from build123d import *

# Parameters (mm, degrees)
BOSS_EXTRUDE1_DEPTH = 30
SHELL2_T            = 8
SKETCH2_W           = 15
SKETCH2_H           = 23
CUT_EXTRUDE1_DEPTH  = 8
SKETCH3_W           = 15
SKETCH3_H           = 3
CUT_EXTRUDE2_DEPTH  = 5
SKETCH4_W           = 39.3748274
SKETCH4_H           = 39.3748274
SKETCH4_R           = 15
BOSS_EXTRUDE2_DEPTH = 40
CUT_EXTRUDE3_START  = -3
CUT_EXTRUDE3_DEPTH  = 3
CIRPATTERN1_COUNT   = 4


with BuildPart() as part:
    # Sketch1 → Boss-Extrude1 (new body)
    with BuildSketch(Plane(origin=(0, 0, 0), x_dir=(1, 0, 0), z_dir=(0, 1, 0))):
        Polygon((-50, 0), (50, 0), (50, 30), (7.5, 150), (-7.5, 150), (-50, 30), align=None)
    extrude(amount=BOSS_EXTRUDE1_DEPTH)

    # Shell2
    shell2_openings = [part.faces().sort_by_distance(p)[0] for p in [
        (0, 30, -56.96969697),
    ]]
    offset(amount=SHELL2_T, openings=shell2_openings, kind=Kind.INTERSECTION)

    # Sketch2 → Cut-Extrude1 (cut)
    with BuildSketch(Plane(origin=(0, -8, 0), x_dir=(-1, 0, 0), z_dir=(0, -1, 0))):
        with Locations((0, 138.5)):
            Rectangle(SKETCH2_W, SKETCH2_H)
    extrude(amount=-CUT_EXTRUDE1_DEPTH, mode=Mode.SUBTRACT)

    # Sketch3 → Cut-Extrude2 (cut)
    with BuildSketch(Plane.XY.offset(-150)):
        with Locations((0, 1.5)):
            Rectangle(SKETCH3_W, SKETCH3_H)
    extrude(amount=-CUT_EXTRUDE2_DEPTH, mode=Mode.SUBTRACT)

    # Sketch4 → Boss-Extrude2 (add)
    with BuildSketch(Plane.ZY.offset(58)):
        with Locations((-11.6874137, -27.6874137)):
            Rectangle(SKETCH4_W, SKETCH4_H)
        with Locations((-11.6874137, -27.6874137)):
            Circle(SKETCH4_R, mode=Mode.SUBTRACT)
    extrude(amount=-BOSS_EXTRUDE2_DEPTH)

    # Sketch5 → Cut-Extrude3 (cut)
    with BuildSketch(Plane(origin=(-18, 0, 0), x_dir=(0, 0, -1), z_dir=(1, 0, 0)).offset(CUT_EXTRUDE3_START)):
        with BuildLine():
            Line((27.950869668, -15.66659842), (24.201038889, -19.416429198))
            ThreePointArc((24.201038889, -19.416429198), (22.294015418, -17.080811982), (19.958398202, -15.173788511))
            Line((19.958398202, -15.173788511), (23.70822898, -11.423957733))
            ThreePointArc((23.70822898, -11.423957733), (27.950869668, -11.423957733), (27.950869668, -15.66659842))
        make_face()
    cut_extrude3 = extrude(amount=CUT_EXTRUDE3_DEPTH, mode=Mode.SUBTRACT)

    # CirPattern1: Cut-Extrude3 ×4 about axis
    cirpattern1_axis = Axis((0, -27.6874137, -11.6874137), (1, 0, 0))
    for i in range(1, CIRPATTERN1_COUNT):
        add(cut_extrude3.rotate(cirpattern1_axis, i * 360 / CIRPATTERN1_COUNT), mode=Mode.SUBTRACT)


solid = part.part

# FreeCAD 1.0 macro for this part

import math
import FreeCAD as App
import Part
import Sketcher
from FreeCAD import Vector
Q = App.Units.Quantity


def faces_at(feature, points):
    """Names of the faces that lie closest to the given points."""
    faces = feature.Shape.Faces
    near = lambda p: min(range(len(faces)), key=lambda i: faces[i].distToShape(Part.Vertex(*p))[0])
    return sorted({f"Face{near(p) + 1}" for p in points})


def add_polygon(sketch, points):
    """Adds a closed chain of lines whose ends are joined by coincident constraints."""
    first, n = sketch.GeometryCount, len(points)
    for a, b in zip(points, points[1:] + points[:1]):
        sketch.addGeometry(Part.LineSegment(App.Vector(*a, 0), App.Vector(*b, 0)), False)
    for i in range(n):
        sketch.addConstraint(Sketcher.Constraint("Coincident", first + i, 2, first + (i + 1) % n, 1))

doc = App.newDocument("Part")
body = doc.addObject("PartDesign::Body", "Body")

# Sketch on XZ plane
sketch1 = body.newObject("Sketcher::SketchObject", "Sketch")
sketch1.AttachmentSupport = (doc.getObject("XZ_Plane"), [""])
sketch1.MapMode = "FlatFace"
add_polygon(sketch1, [(-50, 0), (50, 0), (50, -30), (8, -150), (-8, -150), (-50, -30)])  # lines 0-5
sketch1.addConstraint([
    Sketcher.Constraint("Horizontal", 0),
    Sketcher.Constraint("Vertical", 1),
    Sketcher.Constraint("Horizontal", 3),
    Sketcher.Constraint("Vertical", 5),
    Sketcher.Constraint("Symmetric", 0, 2, 5, 2, -1, 1),
    Sketcher.Constraint("Horizontal", 1, 2, 4, 2),
    Sketcher.Constraint("Equal", 2, 4),
    Sketcher.Constraint("DistanceX", 0, 1, 0, 2, Q("100 mm")),
    Sketcher.Constraint("DistanceX", 3, 2, 3, 1, Q("15 mm")),
    Sketcher.Constraint("DistanceY", 1, 2, 1, 1, Q("30 mm")),
    Sketcher.Constraint("DistanceY", 2, 2, -1, 1, Q("150 mm")),
])
pad1 = body.newObject("PartDesign::Pad", "Pad")
pad1.Profile = sketch1
pad1.Length = 30
pad1.Reversed = True
doc.recompute()

thickness = body.newObject("PartDesign::Thickness", "Thickness")
thickness.Base = (pad1, faces_at(pad1, [(0, 30, -75)]))
thickness.Value = 8
thickness.Reversed = False
thickness.Join = "Intersection"

# Sketch on XZ plane
sketch2 = body.newObject("Sketcher::SketchObject", "Sketch001")
sketch2.AttachmentSupport = (doc.getObject("XZ_Plane"), [""])
sketch2.MapMode = "FlatFace"
sketch2.AttachmentOffset = App.Placement(Vector(0, 0, 8), App.Rotation())
add_polygon(sketch2, [(8, -150), (8, -127), (-8, -127), (-8, -150)])  # lines 0-3
sketch2.addConstraint([
    Sketcher.Constraint("Vertical", 0),
    Sketcher.Constraint("Horizontal", 1),
    Sketcher.Constraint("Vertical", 2),
    Sketcher.Constraint("Horizontal", 3),
    Sketcher.Constraint("DistanceX", 1, 2, 1, 1, Q("15 mm")),
    Sketcher.Constraint("DistanceY", 0, 1, 0, 2, Q("23 mm")),
    Sketcher.Constraint("DistanceY", 0, 2, -1, 1, Q("127 mm")),
    Sketcher.Constraint("DistanceX", -1, 1, 0, 2, Q("7.5 mm")),
])
pocket1 = body.newObject("PartDesign::Pocket", "Pocket")
pocket1.Profile = sketch2
pocket1.Length = 8

# Sketch on XY plane
sketch3 = body.newObject("Sketcher::SketchObject", "Sketch002")
sketch3.AttachmentSupport = (doc.getObject("XY_Plane"), [""])
sketch3.MapMode = "FlatFace"
sketch3.AttachmentOffset = App.Placement(Vector(0, 0, -150), App.Rotation())
add_polygon(sketch3, [(-7.5, 3), (-7.5, 0), (7.5, 0), (7.5, 3)])  # lines 0-3
sketch3.addConstraint([
    Sketcher.Constraint("Vertical", 0),
    Sketcher.Constraint("Horizontal", 1),
    Sketcher.Constraint("Vertical", 2),
    Sketcher.Constraint("Horizontal", 3),
    Sketcher.Constraint("Symmetric", 0, 2, 1, 2, -1, 1),
    Sketcher.Constraint("DistanceX", 1, 1, 1, 2, Q("15 mm")),
    Sketcher.Constraint("DistanceY", 0, 2, 0, 1, Q("3 mm")),
])
pocket2 = body.newObject("PartDesign::Pocket", "Pocket001")
pocket2.Profile = sketch3
pocket2.Length = 5

# Sketch on YZ plane
sketch4 = body.newObject("Sketcher::SketchObject", "Sketch003")
sketch4.AttachmentSupport = (doc.getObject("YZ_Plane"), [""])
sketch4.MapMode = "FlatFace"
sketch4.AttachmentOffset = App.Placement(Vector(0, 0, -58), App.Rotation())
add_polygon(sketch4, [(-8, -31), (-47, -31), (-47, 8), (-8, 8)])  # lines 0-3
sketch4.addGeometry(Part.Circle(Vector(-28, -12, 0), Vector(0, 0, 1), 15), False)  # 4
sketch4.addConstraint([
    Sketcher.Constraint("Horizontal", 0),
    Sketcher.Constraint("Vertical", 1),
    Sketcher.Constraint("Horizontal", 2),
    Sketcher.Constraint("Vertical", 3),
    Sketcher.Constraint("Equal", 2, 1),
    Sketcher.Constraint("Diameter", 4, Q("30 mm")),
    Sketcher.Constraint("DistanceY", -1, 1, 1, 2, Q("8 mm")),
    Sketcher.Constraint("DistanceX", 2, 2, -1, 1, Q("8 mm")),
    Sketcher.Constraint("DistanceX", 0, 2, 0, 1, Q("39.374827 mm")),
    Sketcher.Constraint("DistanceX", 4, 3, -1, 1, Q("27.687414 mm")),
    Sketcher.Constraint("DistanceY", 4, 3, -1, 1, Q("11.687414 mm")),
])
pad2 = body.newObject("PartDesign::Pad", "Pad001")
pad2.Profile = sketch4
pad2.Length = 40

# Sketch on YZ plane
sketch5 = body.newObject("Sketcher::SketchObject", "Sketch004")
sketch5.AttachmentSupport = (doc.getObject("YZ_Plane"), [""])
sketch5.MapMode = "FlatFace"
sketch5.AttachmentOffset = App.Placement(Vector(0, 0, -21), App.Rotation())
sketch5.addGeometry([
    Part.LineSegment(Vector(-19.4, -24.2, 0), Vector(-15.7, -28, 0)),
    Part.ArcOfCircle(Part.Circle(Vector(-13.5, -25.8, 0), Vector(0, 0, 1), 3), math.radians(-135), math.radians(45)),
    Part.LineSegment(Vector(-11.4, -23.7, 0), Vector(-15.2, -20, 0)),
    Part.ArcOfCircle(Part.Circle(Vector(-27.7, -11.7, 0), Vector(0, 0, 1), 15), math.radians(-57), math.radians(-33)),
], False)
sketch5.addConstraint([
    Sketcher.Constraint("Tangent", 0, 2, 1, 1),
    Sketcher.Constraint("Tangent", 1, 2, 2, 1),
    Sketcher.Constraint("Coincident", 2, 2, 3, 2),
    Sketcher.Constraint("Coincident", 3, 1, 0, 1),
    Sketcher.Constraint("Parallel", 0, 2),
    Sketcher.Constraint("Equal", 0, 2),
    Sketcher.Constraint("Radius", 1, Q("3 mm")),
    Sketcher.Constraint("Radius", 3, Q("15 mm")),
    Sketcher.Constraint("Angle", 0, Q("-45 deg")),
    Sketcher.Constraint("DistanceX", 0, 2, -1, 1, Q("15.666598 mm")),
    Sketcher.Constraint("DistanceY", 2, 2, -1, 1, Q("19.958398 mm")),
    Sketcher.Constraint("Distance", 0, Q("5.303062 mm")),
])
pocket3 = body.newObject("PartDesign::Pocket", "Pocket002")
pocket3.Profile = sketch5
pocket3.Length = 3
pocket3.Reversed = True
doc.recompute()

datumline = body.newObject("PartDesign::Line", "DatumLine")
datumline.Placement = App.Placement(Vector(0, -27.687414, -11.687414), App.Rotation(Vector(0, 0, 1), Vector(1, 0, 0)))
polarpattern = body.newObject("PartDesign::PolarPattern", "PolarPattern")
polarpattern.Originals = [pocket3]
polarpattern.Axis = (datumline, [""])
polarpattern.Angle = 360
polarpattern.Occurrences = 4
body.Tip = polarpattern

doc.recompute()
